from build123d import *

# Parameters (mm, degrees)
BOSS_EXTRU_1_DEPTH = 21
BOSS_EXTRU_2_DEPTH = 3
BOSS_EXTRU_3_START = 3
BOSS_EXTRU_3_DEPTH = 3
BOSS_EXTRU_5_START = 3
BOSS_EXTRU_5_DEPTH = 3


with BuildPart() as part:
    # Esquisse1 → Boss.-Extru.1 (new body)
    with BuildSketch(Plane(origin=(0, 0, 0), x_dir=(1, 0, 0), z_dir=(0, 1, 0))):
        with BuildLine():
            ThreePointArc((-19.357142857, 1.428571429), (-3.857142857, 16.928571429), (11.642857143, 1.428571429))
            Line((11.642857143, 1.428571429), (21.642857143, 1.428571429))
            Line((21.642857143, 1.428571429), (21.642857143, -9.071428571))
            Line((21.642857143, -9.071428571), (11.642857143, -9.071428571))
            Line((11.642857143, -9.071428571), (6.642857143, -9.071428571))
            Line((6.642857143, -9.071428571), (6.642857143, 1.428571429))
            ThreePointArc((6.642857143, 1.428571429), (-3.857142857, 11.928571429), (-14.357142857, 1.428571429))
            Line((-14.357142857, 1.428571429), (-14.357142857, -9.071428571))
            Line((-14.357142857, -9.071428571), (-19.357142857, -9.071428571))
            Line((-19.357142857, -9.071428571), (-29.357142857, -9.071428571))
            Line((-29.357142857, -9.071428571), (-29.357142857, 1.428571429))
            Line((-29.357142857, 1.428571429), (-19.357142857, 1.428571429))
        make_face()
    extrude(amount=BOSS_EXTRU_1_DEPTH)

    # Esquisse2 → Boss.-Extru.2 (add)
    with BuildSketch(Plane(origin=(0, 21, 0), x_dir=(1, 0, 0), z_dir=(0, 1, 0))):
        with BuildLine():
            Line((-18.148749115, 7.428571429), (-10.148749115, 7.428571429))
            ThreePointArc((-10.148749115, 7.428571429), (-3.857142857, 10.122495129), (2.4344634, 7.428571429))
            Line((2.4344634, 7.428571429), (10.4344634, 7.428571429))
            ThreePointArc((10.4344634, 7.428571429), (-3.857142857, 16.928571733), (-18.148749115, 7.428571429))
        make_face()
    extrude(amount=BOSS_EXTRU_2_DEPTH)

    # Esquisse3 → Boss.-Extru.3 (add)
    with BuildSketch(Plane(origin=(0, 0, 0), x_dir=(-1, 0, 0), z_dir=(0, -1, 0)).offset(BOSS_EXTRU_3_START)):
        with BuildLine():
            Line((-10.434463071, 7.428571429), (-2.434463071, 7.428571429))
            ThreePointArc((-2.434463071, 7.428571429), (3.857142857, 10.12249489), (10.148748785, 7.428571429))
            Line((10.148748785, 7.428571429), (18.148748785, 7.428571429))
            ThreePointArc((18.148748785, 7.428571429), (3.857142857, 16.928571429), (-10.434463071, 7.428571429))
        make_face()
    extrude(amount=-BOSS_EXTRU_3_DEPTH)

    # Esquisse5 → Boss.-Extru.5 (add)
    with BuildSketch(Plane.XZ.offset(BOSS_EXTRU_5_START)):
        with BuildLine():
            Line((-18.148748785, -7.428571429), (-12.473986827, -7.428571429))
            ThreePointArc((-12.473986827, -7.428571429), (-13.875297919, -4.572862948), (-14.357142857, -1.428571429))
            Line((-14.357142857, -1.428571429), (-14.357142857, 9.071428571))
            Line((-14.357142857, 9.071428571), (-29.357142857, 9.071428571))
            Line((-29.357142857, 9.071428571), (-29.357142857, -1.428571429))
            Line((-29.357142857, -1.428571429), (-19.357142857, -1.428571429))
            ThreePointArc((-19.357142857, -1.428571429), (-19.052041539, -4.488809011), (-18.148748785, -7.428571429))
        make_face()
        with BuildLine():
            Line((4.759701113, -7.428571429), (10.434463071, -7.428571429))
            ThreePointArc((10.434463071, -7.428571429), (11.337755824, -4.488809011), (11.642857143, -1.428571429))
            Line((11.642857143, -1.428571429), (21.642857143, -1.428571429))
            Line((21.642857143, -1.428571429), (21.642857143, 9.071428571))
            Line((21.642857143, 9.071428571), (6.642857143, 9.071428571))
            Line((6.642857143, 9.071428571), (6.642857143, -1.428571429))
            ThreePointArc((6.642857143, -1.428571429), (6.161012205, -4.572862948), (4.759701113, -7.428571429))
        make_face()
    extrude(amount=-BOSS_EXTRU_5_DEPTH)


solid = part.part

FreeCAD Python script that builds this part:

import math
import FreeCAD as App
import Part
import Sketcher

doc = App.newDocument("Part")
body = doc.addObject("PartDesign::Body", "Body")

# Sketch on XZ plane
sketch1 = doc.addObject("Sketcher::SketchObject", "Sketch")
body.addObject(sketch1)
sketch1.AttachmentSupport = (doc.XZ_Plane, [""])
sketch1.MapMode = "FlatFace"
sketch1.addGeometry([
    Part.ArcOfCircle(Part.Circle(App.Vector(-4, -1, 0), App.Vector(0, 0, 1), 16), math.radians(180), math.radians(360)),  # 0
    Part.LineSegment(App.Vector(-19, -1, 0), App.Vector(-29, -1, 0)),  # 1
    Part.LineSegment(App.Vector(-29, -1, 0), App.Vector(-29, 9, 0)),  # 2
    Part.LineSegment(App.Vector(-29, 9, 0), App.Vector(-14, 9, 0)),  # 3
    Part.LineSegment(App.Vector(-14, 9, 0), App.Vector(-14, -1, 0)),  # 4
    Part.ArcOfCircle(Part.Circle(App.Vector(-4, -1, 0), App.Vector(0, 0, 1), 10), math.radians(180), math.radians(360)),  # 5
    Part.LineSegment(App.Vector(7, -1, 0), App.Vector(7, 9, 0)),  # 6
    Part.LineSegment(App.Vector(7, 9, 0), App.Vector(22, 9, 0)),  # 7
    Part.LineSegment(App.Vector(22, 9, 0), App.Vector(22, -1, 0)),  # 8
    Part.LineSegment(App.Vector(22, -1, 0), App.Vector(12, -1, 0)),  # 9
], False)
sketch1.addConstraint([
    Sketcher.Constraint("Coincident", 0, 1, 1, 1),
    Sketcher.Constraint("Coincident", 1, 2, 2, 1),
    Sketcher.Constraint("Coincident", 2, 2, 3, 1),
    Sketcher.Constraint("Coincident", 3, 2, 4, 1),
    Sketcher.Constraint("Tangent", 4, 2, 5, 1),
    Sketcher.Constraint("Tangent", 5, 2, 6, 1),
    Sketcher.Constraint("Coincident", 6, 2, 7, 1),
    Sketcher.Constraint("Coincident", 7, 2, 8, 1),
    Sketcher.Constraint("Coincident", 8, 2, 9, 1),
    Sketcher.Constraint("Coincident", 9, 2, 0, 2),
    Sketcher.Constraint("Horizontal", 1),
    Sketcher.Constraint("Vertical", 2),
    Sketcher.Constraint("Horizontal", 3),
    Sketcher.Constraint("Vertical", 4),
    Sketcher.Constraint("Vertical", 6),
    Sketcher.Constraint("Horizontal", 7),
    Sketcher.Constraint("Vertical", 8),
    Sketcher.Constraint("Horizontal", 9),
    Sketcher.Constraint("Coincident", 5, 3, 0, 3),
    Sketcher.Constraint("Horizontal", 5, 3, 0, 1),
    Sketcher.Constraint("Horizontal", 3, 2, 6, 2),
    Sketcher.Constraint("Horizontal", 5, 2, 8, 2),
    Sketcher.Constraint("Equal", 3, 7),
    Sketcher.Constraint("Radius", 0, 15.5),
    Sketcher.Constraint("Radius", 5, 10.5),
    Sketcher.Constraint("DistanceX", 1, 2, 1, 1, 10.0),
    Sketcher.Constraint("DistanceY", 2, 1, 2, 2, 10.5),
    Sketcher.Constraint("DistanceY", 0, 3, -1, 1, 1.428571),
    Sketcher.Constraint("DistanceX", 0, 3, -1, 1, 3.857143),
])
pad1 = doc.addObject("PartDesign::Pad", "Pad")
body.addObject(pad1)
pad1.Profile = sketch1
pad1.Length = 21
pad1.Reversed = True

# Sketch on XZ plane
sketch2 = doc.addObject("Sketcher::SketchObject", "Sketch001")
body.addObject(sketch2)
sketch2.AttachmentSupport = (doc.XZ_Plane, [""])
sketch2.MapMode = "FlatFace"
sketch2.AttachmentOffset = App.Placement(App.Vector(0, 0, -21), App.Rotation())
sketch2.addGeometry([
    Part.LineSegment(App.Vector(-18, -7, 0), App.Vector(-10, -7, 0)),
    Part.ArcOfCircle(Part.Circle(App.Vector(-4, -1, 0), App.Vector(0, 0, 1), 9), math.radians(-136), math.radians(-44)),
    Part.LineSegment(App.Vector(2, -7, 0), App.Vector(10, -7, 0)),
    Part.ArcOfCircle(Part.Circle(App.Vector(-4, -1, 0), App.Vector(0, 0, 1), 16), math.radians(-157), math.radians(-23)),
], False)
sketch2.addConstraint([
    Sketcher.Constraint("Coincident", 0, 2, 1, 1),
    Sketcher.Constraint("Coincident", 1, 2, 2, 1),
    Sketcher.Constraint("Coincident", 2, 2, 3, 2),
    Sketcher.Constraint("Coincident", 3, 1, 0, 1),
    Sketcher.Constraint("Horizontal", 0),
    Sketcher.Constraint("Horizontal", 2),
    Sketcher.Constraint("Coincident", 3, 3, 1, 3),
    Sketcher.Constraint("Horizontal", 0, 2, 1, 2),
    Sketcher.Constraint("Radius", 3, 15.5),
    Sketcher.Constraint("DistanceX", 0, 1, 0, 2, 8.0),
    Sketcher.Constraint("DistanceY", 0, 2, 1, 3, 6.0),
    Sketcher.Constraint("DistanceY", 1, 3, -1, 1, 1.428571),
    Sketcher.Constraint("DistanceX", 0, 2, -1, 1, 10.148749),
])
pad2 = doc.addObject("PartDesign::Pad", "Pad001")
body.addObject(pad2)
pad2.Profile = sketch2
pad2.Length = 3
pad2.Reversed = True

# Sketch on XZ plane
sketch3 = doc.addObject("Sketcher::SketchObject", "Sketch002")
body.addObject(sketch3)
sketch3.AttachmentSupport = (doc.XZ_Plane, [""])
sketch3.MapMode = "FlatFace"
sketch3.AttachmentOffset = App.Placement(App.Vector(0, 0, 3), App.Rotation())
sketch3.addGeometry([
    Part.LineSegment(App.Vector(10, -7, 0), App.Vector(2, -7, 0)),
    Part.ArcOfCircle(Part.Circle(App.Vector(-4, -1, 0), App.Vector(0, 0, 1), 9), math.radians(-136), math.radians(-44)),
    Part.LineSegment(App.Vector(-10, -7, 0), App.Vector(-18, -7, 0)),
    Part.ArcOfCircle(Part.Circle(App.Vector(-4, -1, 0), App.Vector(0, 0, 1), 16), math.radians(-157), math.radians(-23)),
], False)
sketch3.addConstraint([
    Sketcher.Constraint("Coincident", 0, 2, 1, 2),
    Sketcher.Constraint("Coincident", 1, 1, 2, 1),
    Sketcher.Constraint("Coincident", 2, 2, 3, 1),
    Sketcher.Constraint("Coincident", 3, 2, 0, 1),
    Sketcher.Constraint("Horizontal", 0),
    Sketcher.Constraint("Horizontal", 2),
    Sketcher.Constraint("Coincident", 3, 3, 1, 3),
    Sketcher.Constraint("Horizontal", 0, 2, 1, 1),
    Sketcher.Constraint("Radius", 3, 15.5),
    Sketcher.Constraint("DistanceX", 0, 2, 0, 1, 8.0),
    Sketcher.Constraint("DistanceY", 0, 2, 3, 3, 6.0),
    Sketcher.Constraint("DistanceY", 1, 3, -1, 1, 1.428571),
    Sketcher.Constraint("DistanceX", 1, 1, -1, 1, 10.148749),
])
pad3 = doc.addObject("PartDesign::Pad", "Pad002")
body.addObject(pad3)
pad3.Profile = sketch3
pad3.Length = 3
pad3.Reversed = True

# Sketch on XZ plane
sketch4 = doc.addObject("Sketcher::SketchObject", "Sketch003")
body.addObject(sketch4)
sketch4.AttachmentSupport = (doc.XZ_Plane, [""])
sketch4.MapMode = "FlatFace"
sketch4.AttachmentOffset = App.Placement(App.Vector(0, 0, 3), App.Rotation())
sketch4.addGeometry([
    Part.LineSegment(App.Vector(-18, -7, 0), App.Vector(-12, -7, 0)),  # 0
    Part.ArcOfCircle(Part.Circle(App.Vector(-4, -1, 0), App.Vector(0, 0, 1), 10), math.radians(180), math.radians(215)),  # 1
    Part.LineSegment(App.Vector(-14, -1, 0), App.Vector(-14, 9, 0)),  # 2
    Part.LineSegment(App.Vector(-14, 9, 0), App.Vector(-29, 9, 0)),  # 3
    Part.LineSegment(App.Vector(-29, 9, 0), App.Vector(-29, -1, 0)),  # 4
    Part.LineSegment(App.Vector(-29, -1, 0), App.Vector(-19, -1, 0)),  # 5
    Part.ArcOfCircle(Part.Circle(App.Vector(-4, -1, 0), App.Vector(0, 0, 1), 15), math.radians(180), math.radians(203)),  # 6
    Part.LineSegment(App.Vector(5, -7, 0), App.Vector(10, -7, 0)),  # 7
    Part.ArcOfCircle(Part.Circle(App.Vector(-4, -1, 0), App.Vector(0, 0, 1), 16), math.radians(-23), math.radians(0)),  # 8
    Part.LineSegment(App.Vector(12, -1, 0), App.Vector(22, -1, 0)),  # 9
    Part.LineSegment(App.Vector(22, -1, 0), App.Vector(22, 9, 0)),  # 10
    Part.LineSegment(App.Vector(22, 9, 0), App.Vector(7, 9, 0)),  # 11
    Part.LineSegment(App.Vector(7, 9, 0), App.Vector(7, -1, 0)),  # 12
    Part.ArcOfCircle(Part.Circle(App.Vector(-4, -1, 0), App.Vector(0, 0, 1), 10), math.radians(-35), math.radians(0)),  # 13
], False)
sketch4.addConstraint([
    Sketcher.Constraint("Coincident", 0, 2, 1, 2),
    Sketcher.Constraint("Tangent", 1, 1, 2, 1),
    Sketcher.Constraint("Coincident", 2, 2, 3, 1),
    Sketcher.Constraint("Coincident", 3, 2, 4, 1),
    Sketcher.Constraint("Coincident", 4, 2, 5, 1),
    Sketcher.Constraint("Coincident", 5, 2, 6, 1),
    Sketcher.Constraint("Coincident", 6, 2, 0, 1),
    Sketcher.Constraint("Coincident", 7, 2, 8, 1),
    Sketcher.Constraint("Coincident", 8, 2, 9, 1),
    Sketcher.Constraint("Coincident", 9, 2, 10, 1),
    Sketcher.Constraint("Coincident", 10, 2, 11, 1),
    Sketcher.Constraint("Coincident", 11, 2, 12, 1),
    Sketcher.Constraint("Tangent", 12, 2, 13, 2),
    Sketcher.Constraint("Coincident", 13, 1, 7, 1),
    Sketcher.Constraint("Horizontal", 0),
    Sketcher.Constraint("Vertical", 2),
    Sketcher.Constraint("Horizontal", 3),
    Sketcher.Constraint("Vertical", 4),
    Sketcher.Constraint("Horizontal", 5),
    Sketcher.Constraint("Horizontal", 7),
    Sketcher.Constraint("Horizontal", 9),
    Sketcher.Constraint("Vertical", 10),
    Sketcher.Constraint("Horizontal", 11),
    Sketcher.Constraint("Vertical", 12),
    Sketcher.Constraint("Coincident", 6, 3, 1, 3),
    Sketcher.Constraint("Coincident", 8, 3, 1, 3),
    Sketcher.Constraint("Coincident", 13, 3, 1, 3),
    Sketcher.Constraint("Equal", 6, 8),
    Sketcher.Constraint("Equal", 1, 13),
    Sketcher.Constraint("Horizontal", 1, 1, 4, 2),
    Sketcher.Constraint("Horizontal", 6, 2, 7, 2),
    Sketcher.Constraint("Horizontal", 5, 2, 8, 2),
    Sketcher.Constraint("Horizontal", 3, 2, 10, 2),
    Sketcher.Constraint("Equal", 5, 9),
    Sketcher.Constraint("Radius", 1, 10.5),
    Sketcher.Constraint("Radius", 6, 15.5),
    Sketcher.Constraint("DistanceX", 3, 2, 3, 1, 15.0),
    Sketcher.Constraint("DistanceY", 2, 1, 2, 2, 10.5),
    Sketcher.Constraint("DistanceY", 0, 2, 6, 3, 6.0),
    Sketcher.Constraint("DistanceX", -1, 1, 13, 1, 4.759701),
    Sketcher.Constraint("DistanceY", 1, 3, -1, 1, 1.428571),
])
pad4 = doc.addObject("PartDesign::Pad", "Pad003")
body.addObject(pad4)
pad4.Profile = sketch4
pad4.Length = 3
pad4.Reversed = True

doc.recompute()
